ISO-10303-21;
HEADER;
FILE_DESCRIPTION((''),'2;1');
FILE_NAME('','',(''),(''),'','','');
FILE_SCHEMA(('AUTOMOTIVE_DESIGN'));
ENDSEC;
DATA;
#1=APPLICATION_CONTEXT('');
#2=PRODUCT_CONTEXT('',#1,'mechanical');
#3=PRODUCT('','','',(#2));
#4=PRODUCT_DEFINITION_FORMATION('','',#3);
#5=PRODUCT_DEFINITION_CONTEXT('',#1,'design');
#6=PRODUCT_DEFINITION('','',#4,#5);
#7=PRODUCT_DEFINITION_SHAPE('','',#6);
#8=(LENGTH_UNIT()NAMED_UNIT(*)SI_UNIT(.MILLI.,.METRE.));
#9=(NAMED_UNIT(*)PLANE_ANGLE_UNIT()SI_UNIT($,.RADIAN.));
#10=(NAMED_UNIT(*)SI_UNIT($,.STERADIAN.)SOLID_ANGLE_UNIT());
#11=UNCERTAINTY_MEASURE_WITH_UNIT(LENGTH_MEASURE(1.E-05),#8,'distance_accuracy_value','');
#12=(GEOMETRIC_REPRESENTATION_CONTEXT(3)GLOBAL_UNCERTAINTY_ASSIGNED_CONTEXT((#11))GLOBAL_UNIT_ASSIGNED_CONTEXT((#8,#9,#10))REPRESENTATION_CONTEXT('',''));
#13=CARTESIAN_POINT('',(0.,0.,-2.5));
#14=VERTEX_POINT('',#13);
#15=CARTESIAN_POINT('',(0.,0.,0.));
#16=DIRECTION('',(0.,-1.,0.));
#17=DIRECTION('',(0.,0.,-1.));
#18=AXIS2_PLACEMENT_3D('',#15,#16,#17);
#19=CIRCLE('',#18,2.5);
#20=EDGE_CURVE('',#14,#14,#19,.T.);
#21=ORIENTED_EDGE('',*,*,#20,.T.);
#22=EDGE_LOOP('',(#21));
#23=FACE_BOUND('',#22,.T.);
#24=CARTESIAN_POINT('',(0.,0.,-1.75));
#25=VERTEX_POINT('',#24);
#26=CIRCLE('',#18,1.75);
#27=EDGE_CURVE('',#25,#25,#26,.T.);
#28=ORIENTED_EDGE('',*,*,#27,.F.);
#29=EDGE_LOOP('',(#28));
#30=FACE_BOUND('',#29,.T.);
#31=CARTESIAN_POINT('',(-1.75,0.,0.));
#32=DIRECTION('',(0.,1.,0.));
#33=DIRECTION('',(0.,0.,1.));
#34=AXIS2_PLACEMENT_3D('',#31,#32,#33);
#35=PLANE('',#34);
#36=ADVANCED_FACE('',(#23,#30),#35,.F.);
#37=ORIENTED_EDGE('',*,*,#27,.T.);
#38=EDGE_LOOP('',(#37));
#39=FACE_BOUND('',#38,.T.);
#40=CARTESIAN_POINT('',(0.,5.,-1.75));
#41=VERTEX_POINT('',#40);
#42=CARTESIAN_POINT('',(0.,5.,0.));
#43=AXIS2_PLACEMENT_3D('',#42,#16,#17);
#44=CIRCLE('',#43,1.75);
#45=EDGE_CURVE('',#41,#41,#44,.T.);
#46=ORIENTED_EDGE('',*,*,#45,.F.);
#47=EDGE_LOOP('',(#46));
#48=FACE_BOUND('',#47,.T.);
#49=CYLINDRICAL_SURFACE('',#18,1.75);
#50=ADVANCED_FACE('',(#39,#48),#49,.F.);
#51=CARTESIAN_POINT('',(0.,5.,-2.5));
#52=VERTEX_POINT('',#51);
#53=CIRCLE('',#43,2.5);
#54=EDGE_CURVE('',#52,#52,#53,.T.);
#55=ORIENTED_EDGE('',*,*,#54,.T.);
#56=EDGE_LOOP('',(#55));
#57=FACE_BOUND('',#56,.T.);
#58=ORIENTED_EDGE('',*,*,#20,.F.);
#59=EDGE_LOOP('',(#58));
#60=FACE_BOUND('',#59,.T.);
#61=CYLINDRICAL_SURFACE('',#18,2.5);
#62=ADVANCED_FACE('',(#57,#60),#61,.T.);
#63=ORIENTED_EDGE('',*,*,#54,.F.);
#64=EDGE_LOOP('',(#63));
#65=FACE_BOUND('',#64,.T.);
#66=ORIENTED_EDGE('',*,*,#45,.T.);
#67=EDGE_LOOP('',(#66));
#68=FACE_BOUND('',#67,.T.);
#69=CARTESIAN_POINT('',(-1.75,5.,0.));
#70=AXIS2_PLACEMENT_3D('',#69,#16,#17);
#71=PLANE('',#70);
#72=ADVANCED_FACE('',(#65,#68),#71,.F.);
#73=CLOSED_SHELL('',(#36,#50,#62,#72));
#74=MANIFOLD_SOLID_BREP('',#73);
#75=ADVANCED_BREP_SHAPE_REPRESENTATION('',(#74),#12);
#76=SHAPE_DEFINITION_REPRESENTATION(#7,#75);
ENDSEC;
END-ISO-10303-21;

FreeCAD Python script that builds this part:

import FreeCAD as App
import Part
import Sketcher

V = App.Vector


def add_polygon(sketch, points):
    """Adds a closed chain of lines whose ends are joined by coincident constraints."""
    first, n = sketch.GeometryCount, len(points)
    for a, b in zip(points, points[1:] + points[:1]):
        sketch.addGeometry(Part.LineSegment(App.Vector(*a, 0), App.Vector(*b, 0)), False)
    for i in range(n):
        sketch.addConstraint(Sketcher.Constraint("Coincident", first + i, 2, first + (i + 1) % n, 1))

doc = App.newDocument("Part")
params = doc.addObject("Spreadsheet::Sheet", "Params")
for row, (alias, value) in enumerate([
    ("sketch1_height", "5 mm"),
    ("sketch1_width", "0.75 mm"),
    ("revolution_angle", "360 deg"),
], start=1):
    params.set(f"A{row}", alias)
    params.set(f"B{row}", "=" + value)
    params.setAlias(f"B{row}", alias)

body = doc.addObject("PartDesign::Body", "Body")

# Sketch on XY plane
sketch1 = body.newObject("Sketcher::SketchObject", "Sketch")
sketch1.AttachmentSupport = (doc.getObject("XY_Plane"), [""])
sketch1.MapMode = "FlatFace"
add_polygon(sketch1, [(-2.5, 5), (-2.5, 0), (-1.8, 0), (-1.8, 5)])  # lines 0-3
sketch1.addConstraint([
    Sketcher.Constraint("Vertical", 0),
    Sketcher.Constraint("Horizontal", 1),
    Sketcher.Constraint("Vertical", 2),
    Sketcher.Constraint("Horizontal", 3),
    Sketcher.Constraint("PointOnObject", 0, 2, -1),
    Sketcher.Constraint("DistanceY", 0, 2, 0, 1, 5.0),
    Sketcher.Constraint("DistanceX", 1, 1, 1, 2, 0.75),
    Sketcher.Constraint("DistanceX", 0, 2, -1, 1, 2.5),
])
sketch1.setExpression("Constraints[9]", "Params.sketch1_height")
sketch1.setExpression("Constraints[10]", "Params.sketch1_width")
revolution = body.newObject("PartDesign::Revolution", "Revolution")
revolution.Profile = sketch1
revolution.ReferenceAxis = (sketch1, ["V_Axis"])
revolution.setExpression("Angle", "Params.revolution_angle")

doc.recompute()
